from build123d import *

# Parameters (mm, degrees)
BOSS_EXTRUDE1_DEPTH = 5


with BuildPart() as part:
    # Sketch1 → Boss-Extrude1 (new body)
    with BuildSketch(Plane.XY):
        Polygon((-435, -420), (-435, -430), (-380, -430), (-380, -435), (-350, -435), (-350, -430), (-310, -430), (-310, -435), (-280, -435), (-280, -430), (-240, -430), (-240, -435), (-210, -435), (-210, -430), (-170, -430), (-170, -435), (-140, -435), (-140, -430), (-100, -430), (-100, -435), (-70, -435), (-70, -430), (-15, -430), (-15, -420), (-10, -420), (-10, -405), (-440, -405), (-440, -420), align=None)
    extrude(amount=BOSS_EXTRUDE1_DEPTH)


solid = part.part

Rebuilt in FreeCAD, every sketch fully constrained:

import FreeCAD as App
import Part
import Sketcher
Q = App.Units.Quantity


def add_polygon(sketch, points):
    """Adds a closed chain of lines whose ends are joined by coincident constraints."""
    first, n = sketch.GeometryCount, len(points)
    for a, b in zip(points, points[1:] + points[:1]):
        sketch.addGeometry(Part.LineSegment(App.Vector(*a, 0), App.Vector(*b, 0)), False)
    for i in range(n):
        sketch.addConstraint(Sketcher.Constraint("Coincident", first + i, 2, first + (i + 1) % n, 1))

doc = App.newDocument("Part")
body = doc.addObject("PartDesign::Body", "Body")

# Sketch on XY plane
sketch1 = body.newObject("Sketcher::SketchObject", "Sketch")
sketch1.AttachmentSupport = (doc.getObject("XY_Plane"), [""])
sketch1.MapMode = "FlatFace"
add_polygon(sketch1, [(-435, -420), (-435, -430), (-380, -430), (-380, -435), (-350, -435), (-350, -430), (-310, -430), (-310, -435), (-280, -435), (-280, -430), (-240, -430), (-240, -435), (-210, -435), (-210, -430), (-170, -430), (-170, -435), (-140, -435), (-140, -430), (-100, -430), (-100, -435), (-70, -435), (-70, -430), (-15, -430), (-15, -420), (-10, -420), (-10, -405), (-440, -405), (-440, -420)])  # lines 0-27
sketch1.addConstraint(Sketcher.Constraint("Vertical", 0))
sketch1.addConstraint(Sketcher.Constraint("Horizontal", 1))
sketch1.addConstraint(Sketcher.Constraint("Vertical", 2))
sketch1.addConstraint(Sketcher.Constraint("Horizontal", 3))
sketch1.addConstraint(Sketcher.Constraint("Vertical", 4))
sketch1.addConstraint(Sketcher.Constraint("Horizontal", 5))
sketch1.addConstraint(Sketcher.Constraint("Vertical", 6))
sketch1.addConstraint(Sketcher.Constraint("Horizontal", 7))
sketch1.addConstraint(Sketcher.Constraint("Vertical", 8))
sketch1.addConstraint(Sketcher.Constraint("Horizontal", 9))
sketch1.addConstraint(Sketcher.Constraint("Vertical", 10))
sketch1.addConstraint(Sketcher.Constraint("Horizontal", 11))
sketch1.addConstraint(Sketcher.Constraint("Vertical", 12))
sketch1.addConstraint(Sketcher.Constraint("Horizontal", 13))
sketch1.addConstraint(Sketcher.Constraint("Vertical", 14))
sketch1.addConstraint(Sketcher.Constraint("Horizontal", 15))
sketch1.addConstraint(Sketcher.Constraint("Vertical", 16))
sketch1.addConstraint(Sketcher.Constraint("Horizontal", 17))
sketch1.addConstraint(Sketcher.Constraint("Vertical", 18))
sketch1.addConstraint(Sketcher.Constraint("Horizontal", 19))
sketch1.addConstraint(Sketcher.Constraint("Vertical", 20))
sketch1.addConstraint(Sketcher.Constraint("Horizontal", 21))
sketch1.addConstraint(Sketcher.Constraint("Vertical", 22))
sketch1.addConstraint(Sketcher.Constraint("Horizontal", 23))
sketch1.addConstraint(Sketcher.Constraint("Vertical", 24))
sketch1.addConstraint(Sketcher.Constraint("Horizontal", 25))
sketch1.addConstraint(Sketcher.Constraint("Vertical", 26))
sketch1.addConstraint(Sketcher.Constraint("Horizontal", 27))
sketch1.addConstraint(Sketcher.Constraint("Horizontal", 1, 2, 4, 2))
sketch1.addConstraint(Sketcher.Constraint("Horizontal", 3, 2, 6, 2))
sketch1.addConstraint(Sketcher.Constraint("Horizontal", 5, 2, 8, 2))
sketch1.addConstraint(Sketcher.Constraint("Horizontal", 7, 2, 10, 2))
sketch1.addConstraint(Sketcher.Constraint("Horizontal", 9, 2, 12, 2))
sketch1.addConstraint(Sketcher.Constraint("Horizontal", 11, 2, 14, 2))
sketch1.addConstraint(Sketcher.Constraint("Horizontal", 13, 2, 16, 2))
sketch1.addConstraint(Sketcher.Constraint("Horizontal", 15, 2, 18, 2))
sketch1.addConstraint(Sketcher.Constraint("Horizontal", 17, 2, 20, 2))
sketch1.addConstraint(Sketcher.Constraint("Horizontal", 23, 2, 26, 2))
sketch1.addConstraint(Sketcher.Constraint("Equal", 3, 7))
sketch1.addConstraint(Sketcher.Constraint("Equal", 5, 9))
sketch1.addConstraint(Sketcher.Constraint("Equal", 7, 11))
sketch1.addConstraint(Sketcher.Constraint("Equal", 9, 13))
sketch1.addConstraint(Sketcher.Constraint("Equal", 11, 15))
sketch1.addConstraint(Sketcher.Constraint("Equal", 13, 17))
sketch1.addConstraint(Sketcher.Constraint("Equal", 15, 19))
sketch1.addConstraint(Sketcher.Constraint("Equal", 1, 21))
sketch1.addConstraint(Sketcher.Constraint("Equal", 23, 27))
sketch1.addConstraint(Sketcher.Constraint("Equal", 27, 2))
sketch1.addConstraint(Sketcher.Constraint("DistanceX", 1, 1, 1, 2, Q("55 mm")))
sketch1.addConstraint(Sketcher.Constraint("DistanceX", 3, 1, 3, 2, Q("30 mm")))
sketch1.addConstraint(Sketcher.Constraint("DistanceX", 5, 1, 5, 2, Q("40 mm")))
sketch1.addConstraint(Sketcher.Constraint("DistanceX", 23, 1, 23, 2, Q("5 mm")))
sketch1.addConstraint(Sketcher.Constraint("DistanceY", 0, 2, 0, 1, Q("10 mm")))
sketch1.addConstraint(Sketcher.Constraint("DistanceY", 24, 1, 24, 2, Q("15 mm")))
sketch1.addConstraint(Sketcher.Constraint("DistanceX", 0, 2, -1, 1, Q("435 mm")))
sketch1.addConstraint(Sketcher.Constraint("DistanceY", 0, 2, -1, 1, Q("430 mm")))
pad1 = body.newObject("PartDesign::Pad", "Pad")
pad1.Profile = sketch1
pad1.Length = 5

doc.recompute()
